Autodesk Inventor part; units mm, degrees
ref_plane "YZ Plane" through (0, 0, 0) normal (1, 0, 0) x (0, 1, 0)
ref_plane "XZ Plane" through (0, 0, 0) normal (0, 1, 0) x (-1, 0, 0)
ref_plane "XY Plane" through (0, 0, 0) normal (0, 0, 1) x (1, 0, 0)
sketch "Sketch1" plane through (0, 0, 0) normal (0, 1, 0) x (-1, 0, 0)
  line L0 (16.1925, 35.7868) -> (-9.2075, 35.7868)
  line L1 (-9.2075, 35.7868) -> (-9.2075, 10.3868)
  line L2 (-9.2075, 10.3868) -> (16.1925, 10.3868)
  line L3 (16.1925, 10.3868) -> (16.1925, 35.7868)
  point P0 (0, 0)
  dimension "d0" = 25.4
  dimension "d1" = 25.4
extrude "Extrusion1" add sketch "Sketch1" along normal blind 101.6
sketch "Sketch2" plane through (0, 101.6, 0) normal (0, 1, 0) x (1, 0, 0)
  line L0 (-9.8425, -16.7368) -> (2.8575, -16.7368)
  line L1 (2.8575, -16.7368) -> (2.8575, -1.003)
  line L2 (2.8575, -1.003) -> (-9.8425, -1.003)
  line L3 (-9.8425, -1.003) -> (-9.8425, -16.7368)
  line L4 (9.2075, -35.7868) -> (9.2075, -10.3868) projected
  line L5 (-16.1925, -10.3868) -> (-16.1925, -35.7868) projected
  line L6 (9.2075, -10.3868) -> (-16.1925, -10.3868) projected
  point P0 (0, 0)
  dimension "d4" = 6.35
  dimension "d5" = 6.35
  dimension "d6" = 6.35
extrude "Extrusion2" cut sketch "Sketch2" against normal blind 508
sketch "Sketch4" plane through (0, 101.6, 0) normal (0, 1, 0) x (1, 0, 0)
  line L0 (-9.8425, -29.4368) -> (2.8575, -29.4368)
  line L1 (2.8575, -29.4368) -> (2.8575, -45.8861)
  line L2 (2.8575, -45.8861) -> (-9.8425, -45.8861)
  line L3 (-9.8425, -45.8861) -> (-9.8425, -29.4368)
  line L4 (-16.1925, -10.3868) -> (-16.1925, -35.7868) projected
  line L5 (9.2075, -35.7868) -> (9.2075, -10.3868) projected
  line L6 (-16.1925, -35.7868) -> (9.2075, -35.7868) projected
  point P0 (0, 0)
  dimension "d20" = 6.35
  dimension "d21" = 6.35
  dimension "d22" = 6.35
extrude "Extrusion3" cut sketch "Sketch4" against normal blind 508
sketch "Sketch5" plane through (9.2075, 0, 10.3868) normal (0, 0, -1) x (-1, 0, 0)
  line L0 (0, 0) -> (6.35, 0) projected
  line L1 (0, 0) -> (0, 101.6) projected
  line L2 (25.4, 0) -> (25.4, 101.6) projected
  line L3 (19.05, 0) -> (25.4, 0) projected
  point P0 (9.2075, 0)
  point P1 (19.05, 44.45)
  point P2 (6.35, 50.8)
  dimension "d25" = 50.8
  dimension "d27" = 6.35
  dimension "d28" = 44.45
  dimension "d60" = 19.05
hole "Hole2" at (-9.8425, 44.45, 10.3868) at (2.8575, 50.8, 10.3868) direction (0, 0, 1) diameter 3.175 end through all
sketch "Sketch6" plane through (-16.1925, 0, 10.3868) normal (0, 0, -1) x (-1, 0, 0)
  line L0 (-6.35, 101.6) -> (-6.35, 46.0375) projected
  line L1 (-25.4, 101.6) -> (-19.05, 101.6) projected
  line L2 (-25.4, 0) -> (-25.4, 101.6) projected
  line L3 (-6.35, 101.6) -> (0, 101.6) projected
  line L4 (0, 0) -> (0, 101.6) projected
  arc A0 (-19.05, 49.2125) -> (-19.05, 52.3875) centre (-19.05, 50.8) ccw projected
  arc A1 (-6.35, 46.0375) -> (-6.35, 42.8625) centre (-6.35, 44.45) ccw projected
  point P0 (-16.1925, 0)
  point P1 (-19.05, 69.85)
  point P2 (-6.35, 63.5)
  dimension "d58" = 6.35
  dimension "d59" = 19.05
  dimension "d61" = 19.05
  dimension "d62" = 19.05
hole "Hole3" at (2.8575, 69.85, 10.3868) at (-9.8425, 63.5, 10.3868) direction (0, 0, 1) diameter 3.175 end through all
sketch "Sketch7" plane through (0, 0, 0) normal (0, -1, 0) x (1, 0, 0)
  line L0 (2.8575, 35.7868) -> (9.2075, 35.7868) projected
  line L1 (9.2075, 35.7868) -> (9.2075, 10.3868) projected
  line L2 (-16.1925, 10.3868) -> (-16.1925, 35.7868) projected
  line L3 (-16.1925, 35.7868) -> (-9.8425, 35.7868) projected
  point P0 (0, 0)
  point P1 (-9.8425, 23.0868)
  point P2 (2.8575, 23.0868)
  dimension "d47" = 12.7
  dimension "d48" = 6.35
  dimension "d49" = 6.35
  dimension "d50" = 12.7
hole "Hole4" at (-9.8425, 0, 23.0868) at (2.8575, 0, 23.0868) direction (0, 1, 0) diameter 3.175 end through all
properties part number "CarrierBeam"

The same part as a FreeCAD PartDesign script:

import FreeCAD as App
import Part
import Sketcher
Q = App.Units.Quantity

doc = App.newDocument("Part")
body = doc.addObject("PartDesign::Body", "Body")

# Sketch on XZ plane
sketch1 = body.newObject("Sketcher::SketchObject", "Sketch")
sketch1.AttachmentSupport = (doc.getObject("XZ_Plane"), [""])
sketch1.MapMode = "FlatFace"
sketch1.addGeometry(Part.LineSegment(App.Vector(-16, 10, 0), App.Vector(-16, 36, 0)), False)
sketch1.addGeometry(Part.LineSegment(App.Vector(-16, 36, 0), App.Vector(9, 36, 0)), False)
sketch1.addGeometry(Part.LineSegment(App.Vector(9, 36, 0), App.Vector(9, 10, 0)), False)
sketch1.addGeometry(Part.LineSegment(App.Vector(9, 10, 0), App.Vector(-16, 10, 0)), False)
sketch1.addConstraint(Sketcher.Constraint("Coincident", 0, 2, 1, 1))
sketch1.addConstraint(Sketcher.Constraint("Coincident", 1, 2, 2, 1))
sketch1.addConstraint(Sketcher.Constraint("Coincident", 2, 2, 3, 1))
sketch1.addConstraint(Sketcher.Constraint("Coincident", 3, 2, 0, 1))
sketch1.addConstraint(Sketcher.Constraint("Vertical", 0))
sketch1.addConstraint(Sketcher.Constraint("Horizontal", 1))
sketch1.addConstraint(Sketcher.Constraint("Vertical", 2))
sketch1.addConstraint(Sketcher.Constraint("Horizontal", 3))
sketch1.addConstraint(Sketcher.Constraint("Equal", 3, 0))
sketch1.addConstraint(Sketcher.Constraint("DistanceX", 1, 1, 1, 2, Q("1 in")))
sketch1.addConstraint(Sketcher.Constraint("DistanceX", 0, 2, -1, 1, Q("0.6375 in")))
sketch1.addConstraint(Sketcher.Constraint("DistanceY", -1, 1, 0, 2, 35.7868))
pad1 = body.newObject("PartDesign::Pad", "Pad")
pad1.Profile = sketch1
pad1.Length = Q("4 in")
pad1.Reversed = True

# Sketch on XZ plane
sketch2 = body.newObject("Sketcher::SketchObject", "Sketch001")
sketch2.AttachmentSupport = (doc.getObject("XZ_Plane"), [""])
sketch2.MapMode = "FlatFace"
sketch2.AttachmentOffset = App.Placement(App.Vector(0, 0, -4 * 25.4), App.Rotation())
sketch2.addGeometry(Part.LineSegment(App.Vector(-10, 17, 0), App.Vector(3, 17, 0)), False)
sketch2.addGeometry(Part.LineSegment(App.Vector(3, 17, 0), App.Vector(3, 1, 0)), False)
sketch2.addGeometry(Part.LineSegment(App.Vector(3, 1, 0), App.Vector(-10, 1, 0)), False)
sketch2.addGeometry(Part.LineSegment(App.Vector(-10, 1, 0), App.Vector(-10, 17, 0)), False)
sketch2.addConstraint(Sketcher.Constraint("Coincident", 0, 2, 1, 1))
sketch2.addConstraint(Sketcher.Constraint("Coincident", 1, 2, 2, 1))
sketch2.addConstraint(Sketcher.Constraint("Coincident", 2, 2, 3, 1))
sketch2.addConstraint(Sketcher.Constraint("Coincident", 3, 2, 0, 1))
sketch2.addConstraint(Sketcher.Constraint("Horizontal", 0))
sketch2.addConstraint(Sketcher.Constraint("Vertical", 1))
sketch2.addConstraint(Sketcher.Constraint("Horizontal", 2))
sketch2.addConstraint(Sketcher.Constraint("Vertical", 3))
sketch2.addConstraint(Sketcher.Constraint("DistanceX", 0, 1, 0, 2, Q("0.5 in")))
sketch2.addConstraint(Sketcher.Constraint("DistanceY", 1, 2, 1, 1, 15.7338))
sketch2.addConstraint(Sketcher.Constraint("DistanceX", -1, 1, 0, 2, Q("0.1125 in")))
sketch2.addConstraint(Sketcher.Constraint("DistanceY", -1, 1, 1, 2, Q("0.0395 in")))
pocket1 = body.newObject("PartDesign::Pocket", "Pocket")
pocket1.Profile = sketch2
pocket1.Length = Q("20 in")
pocket1.Reversed = True

# Sketch on XZ plane
sketch3 = body.newObject("Sketcher::SketchObject", "Sketch002")
sketch3.AttachmentSupport = (doc.getObject("XZ_Plane"), [""])
sketch3.MapMode = "FlatFace"
sketch3.AttachmentOffset = App.Placement(App.Vector(0, 0, -4 * 25.4), App.Rotation())
sketch3.addGeometry(Part.LineSegment(App.Vector(3, 29, 0), App.Vector(-10, 29, 0)), False)
sketch3.addGeometry(Part.LineSegment(App.Vector(-10, 29, 0), App.Vector(-10, 46, 0)), False)
sketch3.addGeometry(Part.LineSegment(App.Vector(-10, 46, 0), App.Vector(3, 46, 0)), False)
sketch3.addGeometry(Part.LineSegment(App.Vector(3, 46, 0), App.Vector(3, 29, 0)), False)
sketch3.addConstraint(Sketcher.Constraint("Coincident", 0, 2, 1, 1))
sketch3.addConstraint(Sketcher.Constraint("Coincident", 1, 2, 2, 1))
sketch3.addConstraint(Sketcher.Constraint("Coincident", 2, 2, 3, 1))
sketch3.addConstraint(Sketcher.Constraint("Coincident", 3, 2, 0, 1))
sketch3.addConstraint(Sketcher.Constraint("Horizontal", 0))
sketch3.addConstraint(Sketcher.Constraint("Vertical", 1))
sketch3.addConstraint(Sketcher.Constraint("Horizontal", 2))
sketch3.addConstraint(Sketcher.Constraint("Vertical", 3))
sketch3.addConstraint(Sketcher.Constraint("DistanceX", 0, 2, 0, 1, Q("0.5 in")))
sketch3.addConstraint(Sketcher.Constraint("DistanceY", 1, 1, 1, 2, Q("0.6476 in")))
sketch3.addConstraint(Sketcher.Constraint("DistanceX", 0, 2, -1, 1, Q("0.3875 in")))
sketch3.addConstraint(Sketcher.Constraint("DistanceY", -1, 1, 0, 2, 29.4368))
pocket2 = body.newObject("PartDesign::Pocket", "Pocket001")
pocket2.Profile = sketch3
pocket2.Length = Q("20 in")
pocket2.Reversed = True

# Sketch on XY plane
sketch4 = body.newObject("Sketcher::SketchObject", "Sketch003")
sketch4.AttachmentSupport = (doc.getObject("XY_Plane"), [""])
sketch4.MapMode = "FlatFace"
sketch4.AttachmentOffset = App.Placement(App.Vector(0, 0, 10.3868), App.Rotation())
sketch4.addGeometry(Part.Circle(App.Vector(-9.8, 44.5, 0), App.Vector(0, 0, 1), 1.6), False)
sketch4.addGeometry(Part.Circle(App.Vector(2.9, 50.8, 0), App.Vector(0, 0, 1), 1.6), False)
sketch4.addConstraint(Sketcher.Constraint("Equal", 0, 1))
sketch4.addConstraint(Sketcher.Constraint("Diameter", 0, Q("0.125 in")))
sketch4.addConstraint(Sketcher.Constraint("DistanceY", -1, 1, 1, 3, Q("2 in")))
sketch4.addConstraint(Sketcher.Constraint("DistanceX", 0, 3, 1, 3, Q("0.5 in")))
sketch4.addConstraint(Sketcher.Constraint("DistanceY", -1, 1, 0, 3, Q("1.75 in")))
sketch4.addConstraint(Sketcher.Constraint("DistanceX", 0, 3, -1, 1, Q("0.3875 in")))
doc.recompute()
hole = body.newObject("PartDesign::Hole", "Hole")
hole.Profile = sketch4
hole.ThreadType = "None"
hole.Diameter = Q("0.125 in")
hole.DepthType = "ThroughAll"
hole.Reversed = True

# Sketch on XY plane
sketch5 = body.newObject("Sketcher::SketchObject", "Sketch004")
sketch5.AttachmentSupport = (doc.getObject("XY_Plane"), [""])
sketch5.MapMode = "FlatFace"
sketch5.AttachmentOffset = App.Placement(App.Vector(0, 0, 10.3868), App.Rotation())
sketch5.addGeometry(Part.Circle(App.Vector(2.9, 69.8, 0), App.Vector(0, 0, 1), 1.6), False)
sketch5.addGeometry(Part.Circle(App.Vector(-9.8, 63.5, 0), App.Vector(0, 0, 1), 1.6), False)
sketch5.addConstraint(Sketcher.Constraint("Equal", 0, 1))
sketch5.addConstraint(Sketcher.Constraint("Diameter", 0, Q("0.125 in")))
sketch5.addConstraint(Sketcher.Constraint("DistanceY", -1, 1, 1, 3, Q("2.5 in")))
sketch5.addConstraint(Sketcher.Constraint("DistanceX", 1, 3, 0, 3, Q("0.5 in")))
sketch5.addConstraint(Sketcher.Constraint("DistanceY", -1, 1, 0, 3, Q("2.75 in")))
sketch5.addConstraint(Sketcher.Constraint("DistanceX", -1, 1, 0, 3, Q("0.1125 in")))
doc.recompute()
hole2 = body.newObject("PartDesign::Hole", "Hole001")
hole2.Profile = sketch5
hole2.ThreadType = "None"
hole2.Diameter = Q("0.125 in")
hole2.DepthType = "ThroughAll"
hole2.Reversed = True

# Sketch on XZ plane
sketch6 = body.newObject("Sketcher::SketchObject", "Sketch005")
sketch6.AttachmentSupport = (doc.getObject("XZ_Plane"), [""])
sketch6.MapMode = "FlatFace"
sketch6.addGeometry(Part.Circle(App.Vector(-9.8, 23.1, 0), App.Vector(0, 0, 1), 1.6), False)
sketch6.addGeometry(Part.Circle(App.Vector(2.9, 23.1, 0), App.Vector(0, 0, 1), 1.6), False)
sketch6.addConstraint(Sketcher.Constraint("Equal", 0, 1))
sketch6.addConstraint(Sketcher.Constraint("Horizontal", 0, 3, 1, 3))
sketch6.addConstraint(Sketcher.Constraint("Diameter", 0, Q("0.125 in")))
sketch6.addConstraint(Sketcher.Constraint("DistanceX", 0, 3, 1, 3, Q("0.5 in")))
sketch6.addConstraint(Sketcher.Constraint("DistanceX", 0, 3, -1, 1, Q("0.3875 in")))
sketch6.addConstraint(Sketcher.Constraint("DistanceY", -1, 1, 0, 3, 23.0868))
doc.recompute()
hole3 = body.newObject("PartDesign::Hole", "Hole002")
hole3.Profile = sketch6
hole3.ThreadType = "None"
hole3.Diameter = Q("0.125 in")
hole3.DepthType = "ThroughAll"

doc.recompute()
